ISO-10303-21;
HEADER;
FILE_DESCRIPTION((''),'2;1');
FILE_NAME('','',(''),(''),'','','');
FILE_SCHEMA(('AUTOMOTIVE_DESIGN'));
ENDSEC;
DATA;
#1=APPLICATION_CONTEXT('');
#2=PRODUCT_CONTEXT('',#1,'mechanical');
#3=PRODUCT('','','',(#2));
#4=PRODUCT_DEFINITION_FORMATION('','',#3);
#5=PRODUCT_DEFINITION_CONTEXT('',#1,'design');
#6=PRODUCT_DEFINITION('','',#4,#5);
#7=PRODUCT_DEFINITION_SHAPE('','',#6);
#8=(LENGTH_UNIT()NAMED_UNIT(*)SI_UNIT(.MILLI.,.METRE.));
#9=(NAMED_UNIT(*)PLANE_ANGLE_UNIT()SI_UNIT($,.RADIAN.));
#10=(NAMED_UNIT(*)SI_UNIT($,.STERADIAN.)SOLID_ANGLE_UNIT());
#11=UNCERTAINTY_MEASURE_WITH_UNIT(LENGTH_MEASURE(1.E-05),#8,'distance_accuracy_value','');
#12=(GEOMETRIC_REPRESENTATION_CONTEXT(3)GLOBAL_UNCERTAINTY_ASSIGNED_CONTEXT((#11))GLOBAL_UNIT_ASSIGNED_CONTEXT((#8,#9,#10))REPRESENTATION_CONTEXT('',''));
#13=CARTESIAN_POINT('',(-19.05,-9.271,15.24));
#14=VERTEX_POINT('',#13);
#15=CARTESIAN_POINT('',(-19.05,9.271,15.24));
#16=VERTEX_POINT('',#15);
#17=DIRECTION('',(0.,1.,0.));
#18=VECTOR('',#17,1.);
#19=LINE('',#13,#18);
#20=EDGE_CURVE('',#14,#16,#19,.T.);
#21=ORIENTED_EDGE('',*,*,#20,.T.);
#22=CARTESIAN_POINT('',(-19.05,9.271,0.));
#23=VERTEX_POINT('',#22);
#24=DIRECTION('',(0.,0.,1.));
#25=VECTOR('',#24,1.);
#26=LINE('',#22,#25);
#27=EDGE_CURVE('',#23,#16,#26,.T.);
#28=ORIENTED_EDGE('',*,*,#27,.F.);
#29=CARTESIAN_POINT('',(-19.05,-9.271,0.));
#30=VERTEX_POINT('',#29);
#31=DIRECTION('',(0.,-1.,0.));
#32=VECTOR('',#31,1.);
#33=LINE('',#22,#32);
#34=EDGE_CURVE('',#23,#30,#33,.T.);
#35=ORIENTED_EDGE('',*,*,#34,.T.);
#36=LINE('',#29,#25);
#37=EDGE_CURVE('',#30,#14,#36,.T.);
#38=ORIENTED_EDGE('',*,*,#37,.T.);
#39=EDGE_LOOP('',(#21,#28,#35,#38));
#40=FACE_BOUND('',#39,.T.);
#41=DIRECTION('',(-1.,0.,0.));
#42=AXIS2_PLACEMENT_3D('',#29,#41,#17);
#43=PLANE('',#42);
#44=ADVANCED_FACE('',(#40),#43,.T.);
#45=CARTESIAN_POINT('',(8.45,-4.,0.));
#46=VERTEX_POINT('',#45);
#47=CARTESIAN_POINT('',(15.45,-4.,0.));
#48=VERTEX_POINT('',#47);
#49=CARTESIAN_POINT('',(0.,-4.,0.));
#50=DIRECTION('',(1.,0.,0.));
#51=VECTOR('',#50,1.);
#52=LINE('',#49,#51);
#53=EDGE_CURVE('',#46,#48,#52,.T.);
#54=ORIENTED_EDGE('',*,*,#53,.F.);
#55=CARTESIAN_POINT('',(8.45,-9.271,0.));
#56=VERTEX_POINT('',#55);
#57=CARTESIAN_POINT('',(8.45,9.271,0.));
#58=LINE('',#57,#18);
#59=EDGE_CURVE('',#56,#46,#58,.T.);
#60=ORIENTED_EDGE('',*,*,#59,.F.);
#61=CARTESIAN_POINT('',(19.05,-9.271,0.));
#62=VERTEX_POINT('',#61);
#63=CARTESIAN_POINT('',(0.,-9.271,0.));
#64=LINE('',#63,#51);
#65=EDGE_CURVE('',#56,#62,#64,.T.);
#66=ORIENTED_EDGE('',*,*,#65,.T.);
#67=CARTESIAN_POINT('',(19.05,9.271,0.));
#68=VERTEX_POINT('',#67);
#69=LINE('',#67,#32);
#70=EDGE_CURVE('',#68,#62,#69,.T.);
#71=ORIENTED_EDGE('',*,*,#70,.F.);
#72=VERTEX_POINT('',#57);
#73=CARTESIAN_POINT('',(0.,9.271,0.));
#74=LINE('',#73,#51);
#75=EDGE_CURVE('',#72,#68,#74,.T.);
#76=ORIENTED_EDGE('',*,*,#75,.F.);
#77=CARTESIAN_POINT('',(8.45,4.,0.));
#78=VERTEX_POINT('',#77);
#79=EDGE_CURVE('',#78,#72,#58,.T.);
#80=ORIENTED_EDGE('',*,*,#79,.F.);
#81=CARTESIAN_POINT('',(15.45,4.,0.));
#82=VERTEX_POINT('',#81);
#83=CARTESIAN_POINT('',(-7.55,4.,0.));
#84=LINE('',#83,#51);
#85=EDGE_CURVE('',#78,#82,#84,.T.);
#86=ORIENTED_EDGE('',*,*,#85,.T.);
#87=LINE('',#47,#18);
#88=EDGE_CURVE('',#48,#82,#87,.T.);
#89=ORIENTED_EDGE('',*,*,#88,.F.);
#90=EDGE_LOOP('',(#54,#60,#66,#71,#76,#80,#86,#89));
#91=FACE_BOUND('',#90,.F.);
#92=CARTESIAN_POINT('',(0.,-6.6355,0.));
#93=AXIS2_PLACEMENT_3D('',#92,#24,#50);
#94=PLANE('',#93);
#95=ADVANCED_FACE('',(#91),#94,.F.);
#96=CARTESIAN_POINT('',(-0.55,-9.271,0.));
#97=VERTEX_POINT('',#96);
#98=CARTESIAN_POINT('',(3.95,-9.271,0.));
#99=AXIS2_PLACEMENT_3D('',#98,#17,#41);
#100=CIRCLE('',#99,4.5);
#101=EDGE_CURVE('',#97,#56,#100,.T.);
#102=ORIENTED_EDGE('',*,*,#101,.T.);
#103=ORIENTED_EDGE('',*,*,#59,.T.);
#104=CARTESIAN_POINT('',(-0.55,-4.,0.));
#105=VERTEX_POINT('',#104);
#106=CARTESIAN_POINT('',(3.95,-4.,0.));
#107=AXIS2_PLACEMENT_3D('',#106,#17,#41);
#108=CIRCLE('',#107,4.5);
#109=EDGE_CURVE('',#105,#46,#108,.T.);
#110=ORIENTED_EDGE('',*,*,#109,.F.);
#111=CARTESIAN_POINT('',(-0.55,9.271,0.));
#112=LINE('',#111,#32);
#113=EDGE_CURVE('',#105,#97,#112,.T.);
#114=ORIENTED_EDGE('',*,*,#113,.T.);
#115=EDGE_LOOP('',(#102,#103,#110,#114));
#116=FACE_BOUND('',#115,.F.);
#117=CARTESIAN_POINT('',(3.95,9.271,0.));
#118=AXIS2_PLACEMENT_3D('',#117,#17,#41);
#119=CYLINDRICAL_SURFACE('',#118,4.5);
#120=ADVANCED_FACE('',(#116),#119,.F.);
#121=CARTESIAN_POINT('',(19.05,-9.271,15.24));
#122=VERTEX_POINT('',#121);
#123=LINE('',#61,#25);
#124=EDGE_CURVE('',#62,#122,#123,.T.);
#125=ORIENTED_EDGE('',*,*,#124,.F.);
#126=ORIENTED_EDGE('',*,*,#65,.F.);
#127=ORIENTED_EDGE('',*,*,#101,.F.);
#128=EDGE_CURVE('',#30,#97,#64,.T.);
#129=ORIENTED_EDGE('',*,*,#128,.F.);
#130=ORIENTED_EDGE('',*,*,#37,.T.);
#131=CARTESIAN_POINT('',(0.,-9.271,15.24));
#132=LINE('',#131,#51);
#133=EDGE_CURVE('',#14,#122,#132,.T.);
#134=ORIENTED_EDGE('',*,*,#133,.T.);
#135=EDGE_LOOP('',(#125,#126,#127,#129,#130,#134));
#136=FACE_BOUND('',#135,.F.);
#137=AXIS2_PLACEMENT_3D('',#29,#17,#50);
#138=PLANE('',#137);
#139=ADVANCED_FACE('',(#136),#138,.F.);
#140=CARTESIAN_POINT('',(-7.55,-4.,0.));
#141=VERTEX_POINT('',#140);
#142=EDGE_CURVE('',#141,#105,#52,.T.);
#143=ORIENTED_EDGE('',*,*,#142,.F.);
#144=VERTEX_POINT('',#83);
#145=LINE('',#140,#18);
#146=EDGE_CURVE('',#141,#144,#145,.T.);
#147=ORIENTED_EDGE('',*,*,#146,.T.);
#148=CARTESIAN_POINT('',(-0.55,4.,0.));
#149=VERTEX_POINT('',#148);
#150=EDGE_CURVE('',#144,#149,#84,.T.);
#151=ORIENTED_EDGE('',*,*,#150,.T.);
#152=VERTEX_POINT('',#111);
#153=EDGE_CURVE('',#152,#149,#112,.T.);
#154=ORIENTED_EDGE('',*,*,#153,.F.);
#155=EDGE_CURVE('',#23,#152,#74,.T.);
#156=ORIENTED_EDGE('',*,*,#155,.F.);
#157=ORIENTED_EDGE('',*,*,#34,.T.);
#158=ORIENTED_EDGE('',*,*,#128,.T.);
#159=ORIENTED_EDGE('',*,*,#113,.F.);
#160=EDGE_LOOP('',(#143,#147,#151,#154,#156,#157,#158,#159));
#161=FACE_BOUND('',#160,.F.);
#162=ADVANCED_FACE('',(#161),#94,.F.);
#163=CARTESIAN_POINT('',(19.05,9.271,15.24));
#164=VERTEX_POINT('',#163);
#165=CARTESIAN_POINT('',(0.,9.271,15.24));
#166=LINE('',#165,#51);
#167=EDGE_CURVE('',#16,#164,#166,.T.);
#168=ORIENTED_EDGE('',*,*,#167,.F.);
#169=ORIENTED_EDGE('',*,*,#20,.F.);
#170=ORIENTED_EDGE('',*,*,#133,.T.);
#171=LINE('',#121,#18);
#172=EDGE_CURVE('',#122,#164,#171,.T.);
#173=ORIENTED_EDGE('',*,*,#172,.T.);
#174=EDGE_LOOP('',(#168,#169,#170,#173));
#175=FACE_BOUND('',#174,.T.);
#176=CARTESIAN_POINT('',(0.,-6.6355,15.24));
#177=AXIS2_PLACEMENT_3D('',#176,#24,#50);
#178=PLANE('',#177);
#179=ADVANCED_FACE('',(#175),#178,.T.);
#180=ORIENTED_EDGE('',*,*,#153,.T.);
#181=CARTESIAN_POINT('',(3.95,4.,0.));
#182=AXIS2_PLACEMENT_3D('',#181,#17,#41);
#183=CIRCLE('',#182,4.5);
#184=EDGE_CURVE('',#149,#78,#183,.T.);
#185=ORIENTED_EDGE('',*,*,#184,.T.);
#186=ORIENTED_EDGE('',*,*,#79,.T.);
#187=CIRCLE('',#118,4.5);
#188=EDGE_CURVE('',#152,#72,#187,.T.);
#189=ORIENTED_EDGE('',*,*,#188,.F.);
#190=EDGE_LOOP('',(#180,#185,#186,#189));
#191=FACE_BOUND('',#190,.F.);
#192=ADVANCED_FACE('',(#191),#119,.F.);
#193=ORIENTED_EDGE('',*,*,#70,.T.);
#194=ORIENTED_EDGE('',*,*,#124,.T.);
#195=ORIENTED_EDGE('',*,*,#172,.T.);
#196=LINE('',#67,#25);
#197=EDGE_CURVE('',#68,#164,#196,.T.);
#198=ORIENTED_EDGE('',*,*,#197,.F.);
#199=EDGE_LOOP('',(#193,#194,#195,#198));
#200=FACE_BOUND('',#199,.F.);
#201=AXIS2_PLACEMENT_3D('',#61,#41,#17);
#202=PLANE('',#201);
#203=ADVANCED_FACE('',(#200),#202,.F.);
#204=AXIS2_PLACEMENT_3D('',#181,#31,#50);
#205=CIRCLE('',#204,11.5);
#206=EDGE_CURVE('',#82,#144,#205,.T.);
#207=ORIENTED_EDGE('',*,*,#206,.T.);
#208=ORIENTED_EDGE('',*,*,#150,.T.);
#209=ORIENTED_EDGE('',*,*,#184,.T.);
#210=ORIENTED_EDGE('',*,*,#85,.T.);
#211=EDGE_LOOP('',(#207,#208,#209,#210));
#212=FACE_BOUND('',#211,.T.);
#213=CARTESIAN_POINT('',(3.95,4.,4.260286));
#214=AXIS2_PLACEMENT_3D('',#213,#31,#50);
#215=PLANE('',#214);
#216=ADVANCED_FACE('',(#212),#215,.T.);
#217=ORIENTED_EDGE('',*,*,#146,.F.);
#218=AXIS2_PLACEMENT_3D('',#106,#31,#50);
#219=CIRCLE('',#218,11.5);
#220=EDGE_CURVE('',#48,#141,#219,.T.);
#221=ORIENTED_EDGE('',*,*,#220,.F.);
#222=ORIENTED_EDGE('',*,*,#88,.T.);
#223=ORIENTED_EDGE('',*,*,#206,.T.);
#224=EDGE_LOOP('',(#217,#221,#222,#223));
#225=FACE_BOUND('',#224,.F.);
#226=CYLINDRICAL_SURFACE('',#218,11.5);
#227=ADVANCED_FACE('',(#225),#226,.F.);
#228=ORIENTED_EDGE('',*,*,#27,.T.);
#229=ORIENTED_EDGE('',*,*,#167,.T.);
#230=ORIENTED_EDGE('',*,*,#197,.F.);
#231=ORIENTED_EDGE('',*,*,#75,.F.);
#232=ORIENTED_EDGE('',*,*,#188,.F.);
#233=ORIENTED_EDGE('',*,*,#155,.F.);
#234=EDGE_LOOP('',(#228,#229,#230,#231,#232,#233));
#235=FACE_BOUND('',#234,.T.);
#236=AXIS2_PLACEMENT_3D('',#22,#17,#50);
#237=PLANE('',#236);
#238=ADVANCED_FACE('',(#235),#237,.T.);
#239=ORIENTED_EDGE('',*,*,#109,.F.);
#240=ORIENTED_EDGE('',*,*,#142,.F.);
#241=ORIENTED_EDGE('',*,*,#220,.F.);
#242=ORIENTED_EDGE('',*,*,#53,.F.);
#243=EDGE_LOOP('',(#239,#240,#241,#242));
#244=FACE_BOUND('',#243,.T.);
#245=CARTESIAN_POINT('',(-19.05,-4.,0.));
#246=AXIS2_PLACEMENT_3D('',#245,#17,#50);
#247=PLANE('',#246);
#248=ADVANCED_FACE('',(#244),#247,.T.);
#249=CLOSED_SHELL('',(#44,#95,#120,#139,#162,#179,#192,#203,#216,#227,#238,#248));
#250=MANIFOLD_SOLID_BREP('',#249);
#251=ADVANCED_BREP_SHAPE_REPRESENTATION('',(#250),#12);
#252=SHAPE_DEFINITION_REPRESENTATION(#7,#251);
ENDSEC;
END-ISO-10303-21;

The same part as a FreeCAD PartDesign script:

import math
import FreeCAD as App
import Part
import Sketcher

doc = App.newDocument("Part")
body = doc.addObject("PartDesign::Body", "Body")

# Sketch on XY plane
sketch1 = body.newObject("Sketcher::SketchObject", "Sketch")
sketch1.AttachmentSupport = (doc.getObject("XY_Plane"), [""])
sketch1.MapMode = "FlatFace"
sketch1.addGeometry([
    Part.LineSegment(App.Vector(-19, 9, 0), App.Vector(-19, -4, 0)),
    Part.LineSegment(App.Vector(-19, -4, 0), App.Vector(19, -4, 0)),
    Part.LineSegment(App.Vector(19, -4, 0), App.Vector(19, 9, 0)),
    Part.LineSegment(App.Vector(19, 9, 0), App.Vector(-19, 9, 0)),
], False)
sketch1.addConstraint([
    Sketcher.Constraint("Coincident", 0, 2, 1, 1),
    Sketcher.Constraint("Coincident", 1, 2, 2, 1),
    Sketcher.Constraint("Coincident", 2, 2, 3, 1),
    Sketcher.Constraint("Coincident", 3, 2, 0, 1),
    Sketcher.Constraint("Vertical", 0),
    Sketcher.Constraint("Horizontal", 1),
    Sketcher.Constraint("Vertical", 2),
    Sketcher.Constraint("Horizontal", 3),
    Sketcher.Constraint("DistanceX", 1, 1, 1, 2, 38.1),
    Sketcher.Constraint("DistanceY", 0, 2, -1, 1, 4.0),
    Sketcher.Constraint("DistanceY", 0, 2, 0, 1, 13.271),
    Sketcher.Constraint("DistanceX", 0, 2, -1, 1, 19.05),
])
pad1 = body.newObject("PartDesign::Pad", "Pad")
pad1.Profile = sketch1
pad1.Length = 15.24

# Sketch on XZ plane
sketch2 = body.newObject("Sketcher::SketchObject", "Sketch001")
sketch2.AttachmentSupport = (doc.getObject("XZ_Plane"), [""])
sketch2.MapMode = "FlatFace"
sketch2.AttachmentOffset = App.Placement(App.Vector(0, 0, 4), App.Rotation())
sketch2.addGeometry([
    Part.ArcOfCircle(Part.Circle(App.Vector(4, 0, 0), App.Vector(0, 0, 1), 12), math.radians(0), math.radians(180)),
    Part.LineSegment(App.Vector(-8, 0, 0), App.Vector(15, 0, 0)),
], False)
sketch2.addConstraint([
    Sketcher.Constraint("Coincident", 0, 1, 1, 2),
    Sketcher.Constraint("Coincident", 1, 1, 0, 2),
    Sketcher.Constraint("Horizontal", 1),
    Sketcher.Constraint("PointOnObject", 0, 3, -1),
    Sketcher.Constraint("PointOnObject", 0, 1, -1),
    Sketcher.Constraint("Radius", 0, 11.5),
    Sketcher.Constraint("DistanceX", -1, 1, 0, 3, 3.95),
])
pocket1 = body.newObject("PartDesign::Pocket", "Pocket")
pocket1.Profile = sketch2
pocket1.Length = 8

# Sketch on XY plane
sketch3 = body.newObject("Sketcher::SketchObject", "Sketch002")
sketch3.AttachmentSupport = (doc.getObject("XY_Plane"), [""])
sketch3.MapMode = "FlatFace"
sketch3.addGeometry([
    Part.LineSegment(App.Vector(-19, -4, 0), App.Vector(-19, -9, 0)),
    Part.LineSegment(App.Vector(-19, -9, 0), App.Vector(19, -9, 0)),
    Part.LineSegment(App.Vector(19, -9, 0), App.Vector(19, -4, 0)),
    Part.LineSegment(App.Vector(19, -4, 0), App.Vector(-19, -4, 0)),
], False)
sketch3.addConstraint([
    Sketcher.Constraint("Coincident", 0, 2, 1, 1),
    Sketcher.Constraint("Coincident", 1, 2, 2, 1),
    Sketcher.Constraint("Coincident", 2, 2, 3, 1),
    Sketcher.Constraint("Coincident", 3, 2, 0, 1),
    Sketcher.Constraint("Vertical", 0),
    Sketcher.Constraint("Horizontal", 1),
    Sketcher.Constraint("Vertical", 2),
    Sketcher.Constraint("Horizontal", 3),
    Sketcher.Constraint("DistanceX", 1, 1, 1, 2, 38.1),
    Sketcher.Constraint("DistanceY", 2, 2, -1, 1, 4.0),
    Sketcher.Constraint("DistanceY", 0, 2, 0, 1, 5.271),
    Sketcher.Constraint("DistanceX", 0, 2, -1, 1, 19.05),
])
pad2 = body.newObject("PartDesign::Pad", "Pad001")
pad2.Profile = sketch3
pad2.Length = 15.24

# Sketch on XZ plane
sketch4 = body.newObject("Sketcher::SketchObject", "Sketch003")
sketch4.AttachmentSupport = (doc.getObject("XZ_Plane"), [""])
sketch4.MapMode = "FlatFace"
sketch4.AttachmentOffset = App.Placement(App.Vector(0, 0, -9.271), App.Rotation())
sketch4.addGeometry(Part.Circle(App.Vector(4, 0, 0), App.Vector(0, 0, 1), 4.5), False)
sketch4.addConstraint([
    Sketcher.Constraint("PointOnObject", 0, 3, -1),
    Sketcher.Constraint("Diameter", 0, 9.0),
    Sketcher.Constraint("DistanceX", -1, 1, 0, 3, 3.95),
])
pocket2 = body.newObject("PartDesign::Pocket", "Pocket001")
pocket2.Profile = sketch4
pocket2.Length = 50.8
pocket2.Reversed = True

doc.recompute()
